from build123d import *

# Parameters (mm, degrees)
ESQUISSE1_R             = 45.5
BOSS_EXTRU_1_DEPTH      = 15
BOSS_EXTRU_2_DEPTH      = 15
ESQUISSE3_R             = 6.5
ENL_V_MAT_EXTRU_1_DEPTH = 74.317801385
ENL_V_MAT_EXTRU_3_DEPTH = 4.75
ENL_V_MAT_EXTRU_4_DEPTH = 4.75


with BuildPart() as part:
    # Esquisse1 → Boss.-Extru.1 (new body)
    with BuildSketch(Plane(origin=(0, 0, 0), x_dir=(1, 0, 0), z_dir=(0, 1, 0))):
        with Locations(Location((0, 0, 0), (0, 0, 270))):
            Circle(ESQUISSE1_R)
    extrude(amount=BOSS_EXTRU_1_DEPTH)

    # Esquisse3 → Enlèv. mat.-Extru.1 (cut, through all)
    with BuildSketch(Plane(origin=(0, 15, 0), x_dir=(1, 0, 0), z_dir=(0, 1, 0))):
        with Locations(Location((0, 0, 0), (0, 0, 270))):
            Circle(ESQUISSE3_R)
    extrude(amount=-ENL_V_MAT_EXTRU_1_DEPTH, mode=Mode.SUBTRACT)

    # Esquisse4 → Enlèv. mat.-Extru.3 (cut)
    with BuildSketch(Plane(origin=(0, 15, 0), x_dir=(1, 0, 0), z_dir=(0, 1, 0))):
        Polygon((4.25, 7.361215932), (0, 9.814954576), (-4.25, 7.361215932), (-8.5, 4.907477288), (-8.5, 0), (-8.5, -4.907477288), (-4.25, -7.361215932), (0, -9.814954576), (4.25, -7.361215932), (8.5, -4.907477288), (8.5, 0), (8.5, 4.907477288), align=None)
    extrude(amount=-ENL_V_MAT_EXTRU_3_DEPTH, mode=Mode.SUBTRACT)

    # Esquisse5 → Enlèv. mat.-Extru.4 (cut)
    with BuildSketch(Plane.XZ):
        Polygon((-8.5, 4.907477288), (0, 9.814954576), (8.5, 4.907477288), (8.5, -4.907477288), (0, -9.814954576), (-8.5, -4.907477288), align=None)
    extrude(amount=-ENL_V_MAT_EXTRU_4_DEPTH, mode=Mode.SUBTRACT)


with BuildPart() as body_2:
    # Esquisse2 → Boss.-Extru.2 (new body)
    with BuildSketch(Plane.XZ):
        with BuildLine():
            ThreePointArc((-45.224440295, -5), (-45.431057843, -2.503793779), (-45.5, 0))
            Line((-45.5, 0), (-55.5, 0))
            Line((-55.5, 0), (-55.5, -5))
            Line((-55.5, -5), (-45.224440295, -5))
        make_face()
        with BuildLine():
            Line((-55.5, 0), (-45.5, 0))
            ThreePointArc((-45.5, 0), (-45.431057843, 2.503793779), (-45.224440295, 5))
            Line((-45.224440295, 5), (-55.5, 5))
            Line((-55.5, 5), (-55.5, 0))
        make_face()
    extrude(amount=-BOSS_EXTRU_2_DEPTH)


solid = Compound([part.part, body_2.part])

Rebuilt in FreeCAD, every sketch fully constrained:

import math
import FreeCAD as App
import Part
import Sketcher
Q = App.Units.Quantity

doc = App.newDocument("Part")
params = doc.addObject("Spreadsheet::Sheet", "Params")
for row, (alias, value) in enumerate([
    ("sketch1_diameter", "91 mm"),
    ("pad1_length", "15 mm"),
    ("sketch2_diameter", "13 mm"),
    ("pocket2_length", "4.75 mm"),
    ("pocket3_length", "4.75 mm"),
    ("sketch5_radius", "45.5 mm"),
    ("sketch5_height", "10 mm"),
    ("pad2_length", "15 mm"),
], start=1):
    params.set(f"A{row}", alias)
    params.set(f"B{row}", "=" + value)
    params.setAlias(f"B{row}", alias)

body = doc.addObject("PartDesign::Body", "Body")

sketch1 = doc.addObject("Sketcher::SketchObject", "Sketch")
body.addObject(sketch1)
sketch1.AttachmentSupport = (doc.XZ_Plane, [""])
sketch1.MapMode = "FlatFace"
sketch1.addGeometry(Part.Circle(App.Vector(0, 0, 0), App.Vector(0, 0, 1), 46), False)
sketch1.addConstraint(Sketcher.Constraint("Coincident", 0, 3, -1, 1))
sketch1.addConstraint(Sketcher.Constraint("Diameter", 0, 91.0))
sketch1.setExpression("Constraints[1]", "Params.sketch1_diameter")
pad1 = doc.addObject("PartDesign::Pad", "Pad")
body.addObject(pad1)
pad1.Profile = sketch1
pad1.setExpression("Length", "Params.pad1_length")
pad1.Reversed = True

sketch2 = doc.addObject("Sketcher::SketchObject", "Sketch001")
body.addObject(sketch2)
sketch2.AttachmentSupport = (doc.XZ_Plane, [""])
sketch2.MapMode = "FlatFace"
sketch2.AttachmentOffset = App.Placement(App.Vector(0, 0, -15), App.Rotation())
sketch2.addGeometry(Part.Circle(App.Vector(0, 0, 0), App.Vector(0, 0, 1), 6), False)
sketch2.addConstraint(Sketcher.Constraint("Coincident", 0, 3, -1, 1))
sketch2.addConstraint(Sketcher.Constraint("Diameter", 0, 13.0))
sketch2.setExpression("Constraints[1]", "Params.sketch2_diameter")
pocket1 = doc.addObject("PartDesign::Pocket", "Pocket")
body.addObject(pocket1)
pocket1.Profile = sketch2
pocket1.Type = "ThroughAll"
pocket1.Reversed = True

sketch3 = doc.addObject("Sketcher::SketchObject", "Sketch002")
body.addObject(sketch3)
sketch3.AttachmentSupport = (doc.XZ_Plane, [""])
sketch3.MapMode = "FlatFace"
sketch3.AttachmentOffset = App.Placement(App.Vector(0, 0, -15), App.Rotation())
sketch3.addGeometry(Part.LineSegment(App.Vector(0, -10, 0), App.Vector(-8, -5, 0)), False)
sketch3.addGeometry(Part.LineSegment(App.Vector(-8, -5, 0), App.Vector(-8, 5, 0)), False)
sketch3.addGeometry(Part.LineSegment(App.Vector(-8, 5, 0), App.Vector(0, 10, 0)), False)
sketch3.addGeometry(Part.LineSegment(App.Vector(0, 10, 0), App.Vector(8, 5, 0)), False)
sketch3.addGeometry(Part.LineSegment(App.Vector(8, 5, 0), App.Vector(8, -5, 0)), False)
sketch3.addGeometry(Part.LineSegment(App.Vector(8, -5, 0), App.Vector(0, -10, 0)), False)
sketch3.addConstraint(Sketcher.Constraint("Coincident", 0, 2, 1, 1))
sketch3.addConstraint(Sketcher.Constraint("Coincident", 1, 2, 2, 1))
sketch3.addConstraint(Sketcher.Constraint("Coincident", 2, 2, 3, 1))
sketch3.addConstraint(Sketcher.Constraint("Coincident", 3, 2, 4, 1))
sketch3.addConstraint(Sketcher.Constraint("Coincident", 4, 2, 5, 1))
sketch3.addConstraint(Sketcher.Constraint("Coincident", 5, 2, 0, 1))
sketch3.addConstraint(Sketcher.Constraint("Vertical", 1))
sketch3.addConstraint(Sketcher.Constraint("Vertical", 4))
sketch3.addConstraint(Sketcher.Constraint("Symmetric", 0, 2, 3, 2, -1, 1))
sketch3.addConstraint(Sketcher.Constraint("Symmetric", 2, 2, 5, 2, -1, 1))
sketch3.addConstraint(Sketcher.Constraint("PointOnObject", 2, 2, -2))
sketch3.addConstraint(Sketcher.Constraint("Parallel", 2, 5))
sketch3.addConstraint(Sketcher.Constraint("Horizontal", 1, 2, 3, 2))
sketch3.addConstraint(Sketcher.Constraint("Angle", 0, Q("150 deg")))
sketch3.addConstraint(Sketcher.Constraint("DistanceX", 1, 2, 3, 2, 17.0))
sketch3.addConstraint(Sketcher.Constraint("DistanceY", 1, 1, 1, 2, 9.814955))
pocket2 = doc.addObject("PartDesign::Pocket", "Pocket001")
body.addObject(pocket2)
pocket2.Profile = sketch3
pocket2.setExpression("Length", "Params.pocket2_length")
pocket2.Reversed = True

sketch4 = doc.addObject("Sketcher::SketchObject", "Sketch003")
body.addObject(sketch4)
sketch4.AttachmentSupport = (doc.XZ_Plane, [""])
sketch4.MapMode = "FlatFace"
sketch4.addGeometry(Part.LineSegment(App.Vector(0, 10, 0), App.Vector(-8, 5, 0)), False)
sketch4.addGeometry(Part.LineSegment(App.Vector(-8, 5, 0), App.Vector(-8, -5, 0)), False)
sketch4.addGeometry(Part.LineSegment(App.Vector(-8, -5, 0), App.Vector(0, -10, 0)), False)
sketch4.addGeometry(Part.LineSegment(App.Vector(0, -10, 0), App.Vector(8, -5, 0)), False)
sketch4.addGeometry(Part.LineSegment(App.Vector(8, -5, 0), App.Vector(8, 5, 0)), False)
sketch4.addGeometry(Part.LineSegment(App.Vector(8, 5, 0), App.Vector(0, 10, 0)), False)
sketch4.addConstraint(Sketcher.Constraint("Coincident", 0, 2, 1, 1))
sketch4.addConstraint(Sketcher.Constraint("Coincident", 1, 2, 2, 1))
sketch4.addConstraint(Sketcher.Constraint("Coincident", 2, 2, 3, 1))
sketch4.addConstraint(Sketcher.Constraint("Coincident", 3, 2, 4, 1))
sketch4.addConstraint(Sketcher.Constraint("Coincident", 4, 2, 5, 1))
sketch4.addConstraint(Sketcher.Constraint("Coincident", 5, 2, 0, 1))
sketch4.addConstraint(Sketcher.Constraint("Vertical", 1))
sketch4.addConstraint(Sketcher.Constraint("Vertical", 4))
sketch4.addConstraint(Sketcher.Constraint("Symmetric", 0, 2, 3, 2, -1, 1))
sketch4.addConstraint(Sketcher.Constraint("Symmetric", 2, 2, 5, 2, -1, 1))
sketch4.addConstraint(Sketcher.Constraint("PointOnObject", 2, 2, -2))
sketch4.addConstraint(Sketcher.Constraint("Parallel", 2, 5))
sketch4.addConstraint(Sketcher.Constraint("Horizontal", 1, 2, 3, 2))
sketch4.addConstraint(Sketcher.Constraint("Angle", 0, Q("-150 deg")))
sketch4.addConstraint(Sketcher.Constraint("DistanceX", 1, 2, 3, 2, 17.0))
sketch4.addConstraint(Sketcher.Constraint("DistanceY", 1, 2, 1, 1, 9.814955))
pocket3 = doc.addObject("PartDesign::Pocket", "Pocket002")
body.addObject(pocket3)
pocket3.Profile = sketch4
pocket3.setExpression("Length", "Params.pocket3_length")
body2 = doc.addObject("PartDesign::Body", "Body001")

sketch5 = doc.addObject("Sketcher::SketchObject", "Sketch004")
body2.addObject(sketch5)
sketch5.AttachmentSupport = (doc.getObject("XZ_Plane001"), [""])
sketch5.MapMode = "FlatFace"
sketch5.addGeometry(Part.ArcOfCircle(Part.Circle(App.Vector(0, 0, 0), App.Vector(0, 0, 1), 45), math.radians(180), math.radians(186.31)), False)
sketch5.addGeometry(Part.ArcOfCircle(Part.Circle(App.Vector(0, 0, 0), App.Vector(0, 0, 1), 45), math.radians(173.69), math.radians(180)), False)
sketch5.addGeometry(Part.LineSegment(App.Vector(-45, 5, 0), App.Vector(-56, 5, 0)), False)
sketch5.addGeometry(Part.LineSegment(App.Vector(-56, 5, 0), App.Vector(-56, -5, 0)), False)
sketch5.addGeometry(Part.LineSegment(App.Vector(-56, -5, 0), App.Vector(-45, -5, 0)), False)
sketch5.addConstraint(Sketcher.Constraint("Tangent", 0, 1, 1, 2))
sketch5.addConstraint(Sketcher.Constraint("Coincident", 1, 1, 2, 1))
sketch5.addConstraint(Sketcher.Constraint("Coincident", 2, 2, 3, 1))
sketch5.addConstraint(Sketcher.Constraint("Coincident", 3, 2, 4, 1))
sketch5.addConstraint(Sketcher.Constraint("Coincident", 4, 2, 0, 2))
sketch5.addConstraint(Sketcher.Constraint("Horizontal", 2))
sketch5.addConstraint(Sketcher.Constraint("Vertical", 3))
sketch5.addConstraint(Sketcher.Constraint("Horizontal", 4))
sketch5.addConstraint(Sketcher.Constraint("Coincident", 0, 3, -1, 1))
sketch5.addConstraint(Sketcher.Constraint("Equal", 0, 1))
sketch5.addConstraint(Sketcher.Constraint("PointOnObject", 0, 1, -1))
sketch5.addConstraint(Sketcher.Constraint("Vertical", 1, 1, 4, 2))
sketch5.addConstraint(Sketcher.Constraint("Radius", 0, 45.5))
sketch5.addConstraint(Sketcher.Constraint("DistanceY", 3, 2, 3, 1, 10.0))
sketch5.addConstraint(Sketcher.Constraint("DistanceX", 2, 2, 0, 1, 10.0))
sketch5.setExpression("Constraints[12]", "Params.sketch5_radius")
sketch5.setExpression("Constraints[13]", "Params.sketch5_height")
pad2 = doc.addObject("PartDesign::Pad", "Pad001")
body2.addObject(pad2)
pad2.Profile = sketch5
pad2.setExpression("Length", "Params.pad2_length")
pad2.Reversed = True

doc.recompute()
